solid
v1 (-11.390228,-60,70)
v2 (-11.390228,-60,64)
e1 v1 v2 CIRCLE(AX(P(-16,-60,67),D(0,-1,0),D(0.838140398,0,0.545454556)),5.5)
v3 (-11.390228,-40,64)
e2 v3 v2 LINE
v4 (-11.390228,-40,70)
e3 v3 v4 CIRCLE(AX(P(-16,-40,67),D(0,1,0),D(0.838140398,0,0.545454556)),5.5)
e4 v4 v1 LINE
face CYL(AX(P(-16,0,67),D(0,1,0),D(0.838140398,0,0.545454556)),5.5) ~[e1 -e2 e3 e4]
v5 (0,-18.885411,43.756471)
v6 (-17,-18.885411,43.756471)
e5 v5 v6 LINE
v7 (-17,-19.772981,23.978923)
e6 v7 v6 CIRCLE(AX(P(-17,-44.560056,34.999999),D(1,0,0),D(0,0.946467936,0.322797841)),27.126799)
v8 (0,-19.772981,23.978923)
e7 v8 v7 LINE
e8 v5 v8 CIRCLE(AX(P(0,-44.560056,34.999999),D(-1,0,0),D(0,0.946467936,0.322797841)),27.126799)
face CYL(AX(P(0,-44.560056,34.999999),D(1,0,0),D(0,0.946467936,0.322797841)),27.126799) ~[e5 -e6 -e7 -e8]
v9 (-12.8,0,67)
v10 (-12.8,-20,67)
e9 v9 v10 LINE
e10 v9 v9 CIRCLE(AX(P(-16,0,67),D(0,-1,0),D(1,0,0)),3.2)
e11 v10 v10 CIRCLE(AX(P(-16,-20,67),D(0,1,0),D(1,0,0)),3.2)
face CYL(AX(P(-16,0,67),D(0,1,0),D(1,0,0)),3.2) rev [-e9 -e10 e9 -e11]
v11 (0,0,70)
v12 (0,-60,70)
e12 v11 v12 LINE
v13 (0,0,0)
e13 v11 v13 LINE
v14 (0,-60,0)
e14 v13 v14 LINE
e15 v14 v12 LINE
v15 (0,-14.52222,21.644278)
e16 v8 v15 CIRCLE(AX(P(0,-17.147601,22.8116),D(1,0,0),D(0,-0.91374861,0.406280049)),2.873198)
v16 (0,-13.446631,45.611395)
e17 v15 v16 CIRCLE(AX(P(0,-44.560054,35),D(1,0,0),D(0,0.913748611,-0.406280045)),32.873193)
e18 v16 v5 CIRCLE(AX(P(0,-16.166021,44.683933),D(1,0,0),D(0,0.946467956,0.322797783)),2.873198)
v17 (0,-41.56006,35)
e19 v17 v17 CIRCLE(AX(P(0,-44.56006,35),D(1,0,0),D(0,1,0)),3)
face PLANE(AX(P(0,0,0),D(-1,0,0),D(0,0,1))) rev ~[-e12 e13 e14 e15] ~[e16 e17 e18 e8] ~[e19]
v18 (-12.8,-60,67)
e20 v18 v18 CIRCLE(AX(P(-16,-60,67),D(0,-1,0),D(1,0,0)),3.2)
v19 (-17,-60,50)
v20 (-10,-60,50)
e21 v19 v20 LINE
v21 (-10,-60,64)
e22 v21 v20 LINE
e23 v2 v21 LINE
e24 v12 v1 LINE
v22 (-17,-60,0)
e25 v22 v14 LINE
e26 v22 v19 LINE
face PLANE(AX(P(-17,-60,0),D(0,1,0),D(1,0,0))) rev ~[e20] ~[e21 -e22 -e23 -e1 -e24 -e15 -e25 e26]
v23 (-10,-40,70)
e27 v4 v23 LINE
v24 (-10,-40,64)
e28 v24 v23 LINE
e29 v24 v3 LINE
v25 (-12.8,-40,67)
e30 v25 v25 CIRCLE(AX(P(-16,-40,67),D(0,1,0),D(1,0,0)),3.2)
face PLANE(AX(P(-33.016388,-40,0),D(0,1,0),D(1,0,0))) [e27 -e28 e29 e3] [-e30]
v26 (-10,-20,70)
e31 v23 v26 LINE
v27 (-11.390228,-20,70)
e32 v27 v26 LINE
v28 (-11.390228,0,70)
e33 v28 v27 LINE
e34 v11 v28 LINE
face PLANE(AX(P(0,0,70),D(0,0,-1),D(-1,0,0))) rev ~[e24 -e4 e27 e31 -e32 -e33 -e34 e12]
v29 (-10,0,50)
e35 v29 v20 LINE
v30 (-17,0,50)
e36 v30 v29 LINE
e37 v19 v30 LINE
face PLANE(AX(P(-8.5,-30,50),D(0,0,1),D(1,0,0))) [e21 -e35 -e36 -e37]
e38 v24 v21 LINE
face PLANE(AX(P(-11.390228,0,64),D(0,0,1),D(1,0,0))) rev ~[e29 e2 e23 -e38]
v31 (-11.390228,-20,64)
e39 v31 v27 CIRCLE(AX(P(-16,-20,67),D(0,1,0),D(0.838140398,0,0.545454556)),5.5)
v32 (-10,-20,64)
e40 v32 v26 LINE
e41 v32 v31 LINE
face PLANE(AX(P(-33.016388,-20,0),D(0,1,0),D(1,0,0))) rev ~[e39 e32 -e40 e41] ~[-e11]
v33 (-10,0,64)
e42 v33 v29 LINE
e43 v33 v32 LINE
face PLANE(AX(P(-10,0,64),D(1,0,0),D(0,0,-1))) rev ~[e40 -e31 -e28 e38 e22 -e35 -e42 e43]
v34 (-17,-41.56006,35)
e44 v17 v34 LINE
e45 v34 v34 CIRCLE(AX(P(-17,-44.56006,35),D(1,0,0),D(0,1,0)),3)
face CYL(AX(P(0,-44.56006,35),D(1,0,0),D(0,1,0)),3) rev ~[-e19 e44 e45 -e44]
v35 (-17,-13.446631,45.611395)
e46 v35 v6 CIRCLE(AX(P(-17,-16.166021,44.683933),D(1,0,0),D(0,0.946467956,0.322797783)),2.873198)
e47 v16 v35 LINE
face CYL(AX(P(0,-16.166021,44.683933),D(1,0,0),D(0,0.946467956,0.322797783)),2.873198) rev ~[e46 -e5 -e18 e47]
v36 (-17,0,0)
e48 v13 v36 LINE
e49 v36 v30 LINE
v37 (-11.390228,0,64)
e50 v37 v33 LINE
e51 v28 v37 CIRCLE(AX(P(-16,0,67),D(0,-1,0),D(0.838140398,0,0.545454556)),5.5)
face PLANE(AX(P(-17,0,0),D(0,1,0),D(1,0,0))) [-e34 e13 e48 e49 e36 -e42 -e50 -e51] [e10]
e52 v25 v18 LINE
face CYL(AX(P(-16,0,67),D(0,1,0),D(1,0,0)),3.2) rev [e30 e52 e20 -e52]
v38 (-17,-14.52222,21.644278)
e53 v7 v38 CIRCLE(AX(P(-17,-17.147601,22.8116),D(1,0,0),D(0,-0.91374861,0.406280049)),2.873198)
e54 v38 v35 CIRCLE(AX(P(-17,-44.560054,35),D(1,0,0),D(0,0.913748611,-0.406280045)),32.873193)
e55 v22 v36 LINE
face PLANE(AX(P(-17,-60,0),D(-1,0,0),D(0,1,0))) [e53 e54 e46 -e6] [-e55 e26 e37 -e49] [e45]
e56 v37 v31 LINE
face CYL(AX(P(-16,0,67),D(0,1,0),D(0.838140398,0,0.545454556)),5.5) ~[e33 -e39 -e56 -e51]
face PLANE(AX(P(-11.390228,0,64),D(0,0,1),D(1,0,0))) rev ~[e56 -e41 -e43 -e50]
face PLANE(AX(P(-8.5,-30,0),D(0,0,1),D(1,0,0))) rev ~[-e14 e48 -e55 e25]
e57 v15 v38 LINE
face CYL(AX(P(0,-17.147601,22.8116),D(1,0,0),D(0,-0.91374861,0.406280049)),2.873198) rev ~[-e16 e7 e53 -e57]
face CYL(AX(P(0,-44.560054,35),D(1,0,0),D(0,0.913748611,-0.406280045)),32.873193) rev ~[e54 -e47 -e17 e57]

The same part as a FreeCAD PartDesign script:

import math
import FreeCAD as App
import Part
import Sketcher
Q = App.Units.Quantity


def add_polygon(sketch, points):
    """Adds a closed chain of lines whose ends are joined by coincident constraints."""
    first, n = sketch.GeometryCount, len(points)
    for a, b in zip(points, points[1:] + points[:1]):
        sketch.addGeometry(Part.LineSegment(App.Vector(*a, 0), App.Vector(*b, 0)), False)
    for i in range(n):
        sketch.addConstraint(Sketcher.Constraint("Coincident", first + i, 2, first + (i + 1) % n, 1))

doc = App.newDocument("Part")
body = doc.addObject("PartDesign::Body", "Body")

sketch1 = doc.addObject("Sketcher::SketchObject", "Sketch")
body.addObject(sketch1)
sketch1.AttachmentSupport = (doc.XZ_Plane, [""])
sketch1.MapMode = "FlatFace"
sketch1.addGeometry([
    Part.LineSegment(App.Vector(-10, 64, 0), App.Vector(-10, 0, 0)),
    Part.LineSegment(App.Vector(-10, 0, 0), App.Vector(0, 0, 0)),
    Part.LineSegment(App.Vector(0, 0, 0), App.Vector(0, 70, 0)),
    Part.LineSegment(App.Vector(0, 70, 0), App.Vector(-11.4, 70, 0)),
    Part.ArcOfCircle(Part.Circle(App.Vector(-16, 67, 0), App.Vector(0, 0, 1), 5.5), math.radians(33), math.radians(327)),
    Part.LineSegment(App.Vector(-11.4, 64, 0), App.Vector(-10, 64, 0)),
    Part.Circle(App.Vector(-16, 67, 0), App.Vector(0, 0, 1), 3.2),
], False)
sketch1.addConstraint([
    Sketcher.Constraint("Coincident", 0, 2, 1, 1),
    Sketcher.Constraint("Coincident", 1, 2, 2, 1),
    Sketcher.Constraint("Coincident", 2, 2, 3, 1),
    Sketcher.Constraint("Coincident", 3, 2, 4, 1),
    Sketcher.Constraint("Coincident", 4, 2, 5, 1),
    Sketcher.Constraint("Coincident", 5, 2, 0, 1),
    Sketcher.Constraint("Vertical", 0),
    Sketcher.Constraint("Horizontal", 1),
    Sketcher.Constraint("Vertical", 2),
    Sketcher.Constraint("Horizontal", 3),
    Sketcher.Constraint("Horizontal", 5),
    Sketcher.Constraint("Coincident", 1, 2, -1, 1),
    Sketcher.Constraint("Coincident", 6, 3, 4, 3),
    Sketcher.Constraint("Vertical", 3, 2, 4, 2),
    Sketcher.Constraint("Diameter", 6, Q("6.4 mm")),
    Sketcher.Constraint("Radius", 4, Q("5.5 mm")),
    Sketcher.Constraint("DistanceX", 1, 1, 1, 2, Q("10 mm")),
    Sketcher.Constraint("DistanceY", 0, 2, 0, 1, Q("64 mm")),
    Sketcher.Constraint("DistanceY", 2, 1, 2, 2, Q("70 mm")),
    Sketcher.Constraint("DistanceX", 4, 3, -1, 1, Q("16 mm")),
])
pad1 = doc.addObject("PartDesign::Pad", "Pad")
body.addObject(pad1)
pad1.Profile = sketch1
pad1.Length = 60

sketch2 = doc.addObject("Sketcher::SketchObject", "Sketch001")
body.addObject(sketch2)
sketch2.AttachmentSupport = (doc.XY_Plane, [""])
sketch2.MapMode = "FlatFace"
add_polygon(sketch2, [(-33, -20), (-33, -40), (-10, -40), (-10, -20)])
sketch2.addConstraint([
    Sketcher.Constraint("Vertical", 0),
    Sketcher.Constraint("Horizontal", 1),
    Sketcher.Constraint("Vertical", 2),
    Sketcher.Constraint("Horizontal", 3),
    Sketcher.Constraint("DistanceY", 0, 2, 0, 1, Q("20 mm")),
    Sketcher.Constraint("DistanceY", 0, 2, -1, 1, Q("40 mm")),
    Sketcher.Constraint("DistanceX", 1, 2, -1, 1, Q("10 mm")),
    Sketcher.Constraint("DistanceX", 1, 1, 1, 2, Q("23.016388 mm")),
])
pocket1 = doc.addObject("PartDesign::Pocket", "Pocket")
body.addObject(pocket1)
pocket1.Profile = sketch2
pocket1.Type = "ThroughAll"
pocket1.Reversed = True

sketch3 = doc.addObject("Sketcher::SketchObject", "Sketch002")
body.addObject(sketch3)
sketch3.AttachmentSupport = (doc.XY_Plane, [""])
sketch3.MapMode = "FlatFace"
add_polygon(sketch3, [(-17, 0), (-17, -60), (0, -60), (0, 0)])
sketch3.addConstraint([
    Sketcher.Constraint("Vertical", 0),
    Sketcher.Constraint("Horizontal", 1),
    Sketcher.Constraint("Vertical", 2),
    Sketcher.Constraint("Horizontal", 3),
    Sketcher.Constraint("Coincident", 2, 2, -1, 1),
    Sketcher.Constraint("DistanceX", 1, 1, 1, 2, Q("17 mm")),
    Sketcher.Constraint("DistanceY", 0, 2, 0, 1, Q("60 mm")),
])
pad2 = doc.addObject("PartDesign::Pad", "Pad001")
body.addObject(pad2)
pad2.Profile = sketch3
pad2.Length = 50

sketch4 = doc.addObject("Sketcher::SketchObject", "Sketch003")
body.addObject(sketch4)
sketch4.AttachmentSupport = (doc.YZ_Plane, [""])
sketch4.MapMode = "FlatFace"
sketch4.addGeometry([
    Part.Circle(App.Vector(-44.6, 35, 0), App.Vector(0, 0, 1), 3),
    Part.ArcOfCircle(Part.Circle(App.Vector(-44.6, 35, 0), App.Vector(0, 0, 1), 27.1), math.radians(-24), math.radians(19)),
    Part.ArcOfCircle(Part.Circle(App.Vector(-17.1, 22.8, 0), App.Vector(0, 0, 1), 2.9), math.radians(156), math.radians(336)),
    Part.ArcOfCircle(Part.Circle(App.Vector(-44.6, 35, 0), App.Vector(0, 0, 1), 32.9), math.radians(-24), math.radians(19)),
    Part.ArcOfCircle(Part.Circle(App.Vector(-16.2, 44.7, 0), App.Vector(0, 0, 1), 2.9), math.radians(19), math.radians(199)),
], False)
sketch4.addConstraint([
    Sketcher.Constraint("Tangent", 1, 1, 2, 1),
    Sketcher.Constraint("Tangent", 2, 2, 3, 1),
    Sketcher.Constraint("Tangent", 3, 2, 4, 1),
    Sketcher.Constraint("Tangent", 4, 2, 1, 2),
    Sketcher.Constraint("Coincident", 1, 3, 0, 3),
    Sketcher.Constraint("Coincident", 3, 3, 0, 3),
    Sketcher.Constraint("Diameter", 0, Q("6 mm")),
    Sketcher.Constraint("DistanceY", -1, 1, 0, 3, Q("35 mm")),
    Sketcher.Constraint("Radius", 1, Q("27.126799 mm")),
    Sketcher.Constraint("Radius", 4, Q("2.873198 mm")),
    Sketcher.Constraint("DistanceX", 2, 3, -1, 1, Q("17.147601 mm")),
    Sketcher.Constraint("DistanceY", -1, 1, 2, 3, Q("22.8116 mm")),
    Sketcher.Constraint("DistanceX", 4, 3, 2, 2, Q("1.643801 mm")),
])
pocket2 = doc.addObject("PartDesign::Pocket", "Pocket001")
body.addObject(pocket2)
pocket2.Profile = sketch4
pocket2.Length = 25

doc.recompute()
